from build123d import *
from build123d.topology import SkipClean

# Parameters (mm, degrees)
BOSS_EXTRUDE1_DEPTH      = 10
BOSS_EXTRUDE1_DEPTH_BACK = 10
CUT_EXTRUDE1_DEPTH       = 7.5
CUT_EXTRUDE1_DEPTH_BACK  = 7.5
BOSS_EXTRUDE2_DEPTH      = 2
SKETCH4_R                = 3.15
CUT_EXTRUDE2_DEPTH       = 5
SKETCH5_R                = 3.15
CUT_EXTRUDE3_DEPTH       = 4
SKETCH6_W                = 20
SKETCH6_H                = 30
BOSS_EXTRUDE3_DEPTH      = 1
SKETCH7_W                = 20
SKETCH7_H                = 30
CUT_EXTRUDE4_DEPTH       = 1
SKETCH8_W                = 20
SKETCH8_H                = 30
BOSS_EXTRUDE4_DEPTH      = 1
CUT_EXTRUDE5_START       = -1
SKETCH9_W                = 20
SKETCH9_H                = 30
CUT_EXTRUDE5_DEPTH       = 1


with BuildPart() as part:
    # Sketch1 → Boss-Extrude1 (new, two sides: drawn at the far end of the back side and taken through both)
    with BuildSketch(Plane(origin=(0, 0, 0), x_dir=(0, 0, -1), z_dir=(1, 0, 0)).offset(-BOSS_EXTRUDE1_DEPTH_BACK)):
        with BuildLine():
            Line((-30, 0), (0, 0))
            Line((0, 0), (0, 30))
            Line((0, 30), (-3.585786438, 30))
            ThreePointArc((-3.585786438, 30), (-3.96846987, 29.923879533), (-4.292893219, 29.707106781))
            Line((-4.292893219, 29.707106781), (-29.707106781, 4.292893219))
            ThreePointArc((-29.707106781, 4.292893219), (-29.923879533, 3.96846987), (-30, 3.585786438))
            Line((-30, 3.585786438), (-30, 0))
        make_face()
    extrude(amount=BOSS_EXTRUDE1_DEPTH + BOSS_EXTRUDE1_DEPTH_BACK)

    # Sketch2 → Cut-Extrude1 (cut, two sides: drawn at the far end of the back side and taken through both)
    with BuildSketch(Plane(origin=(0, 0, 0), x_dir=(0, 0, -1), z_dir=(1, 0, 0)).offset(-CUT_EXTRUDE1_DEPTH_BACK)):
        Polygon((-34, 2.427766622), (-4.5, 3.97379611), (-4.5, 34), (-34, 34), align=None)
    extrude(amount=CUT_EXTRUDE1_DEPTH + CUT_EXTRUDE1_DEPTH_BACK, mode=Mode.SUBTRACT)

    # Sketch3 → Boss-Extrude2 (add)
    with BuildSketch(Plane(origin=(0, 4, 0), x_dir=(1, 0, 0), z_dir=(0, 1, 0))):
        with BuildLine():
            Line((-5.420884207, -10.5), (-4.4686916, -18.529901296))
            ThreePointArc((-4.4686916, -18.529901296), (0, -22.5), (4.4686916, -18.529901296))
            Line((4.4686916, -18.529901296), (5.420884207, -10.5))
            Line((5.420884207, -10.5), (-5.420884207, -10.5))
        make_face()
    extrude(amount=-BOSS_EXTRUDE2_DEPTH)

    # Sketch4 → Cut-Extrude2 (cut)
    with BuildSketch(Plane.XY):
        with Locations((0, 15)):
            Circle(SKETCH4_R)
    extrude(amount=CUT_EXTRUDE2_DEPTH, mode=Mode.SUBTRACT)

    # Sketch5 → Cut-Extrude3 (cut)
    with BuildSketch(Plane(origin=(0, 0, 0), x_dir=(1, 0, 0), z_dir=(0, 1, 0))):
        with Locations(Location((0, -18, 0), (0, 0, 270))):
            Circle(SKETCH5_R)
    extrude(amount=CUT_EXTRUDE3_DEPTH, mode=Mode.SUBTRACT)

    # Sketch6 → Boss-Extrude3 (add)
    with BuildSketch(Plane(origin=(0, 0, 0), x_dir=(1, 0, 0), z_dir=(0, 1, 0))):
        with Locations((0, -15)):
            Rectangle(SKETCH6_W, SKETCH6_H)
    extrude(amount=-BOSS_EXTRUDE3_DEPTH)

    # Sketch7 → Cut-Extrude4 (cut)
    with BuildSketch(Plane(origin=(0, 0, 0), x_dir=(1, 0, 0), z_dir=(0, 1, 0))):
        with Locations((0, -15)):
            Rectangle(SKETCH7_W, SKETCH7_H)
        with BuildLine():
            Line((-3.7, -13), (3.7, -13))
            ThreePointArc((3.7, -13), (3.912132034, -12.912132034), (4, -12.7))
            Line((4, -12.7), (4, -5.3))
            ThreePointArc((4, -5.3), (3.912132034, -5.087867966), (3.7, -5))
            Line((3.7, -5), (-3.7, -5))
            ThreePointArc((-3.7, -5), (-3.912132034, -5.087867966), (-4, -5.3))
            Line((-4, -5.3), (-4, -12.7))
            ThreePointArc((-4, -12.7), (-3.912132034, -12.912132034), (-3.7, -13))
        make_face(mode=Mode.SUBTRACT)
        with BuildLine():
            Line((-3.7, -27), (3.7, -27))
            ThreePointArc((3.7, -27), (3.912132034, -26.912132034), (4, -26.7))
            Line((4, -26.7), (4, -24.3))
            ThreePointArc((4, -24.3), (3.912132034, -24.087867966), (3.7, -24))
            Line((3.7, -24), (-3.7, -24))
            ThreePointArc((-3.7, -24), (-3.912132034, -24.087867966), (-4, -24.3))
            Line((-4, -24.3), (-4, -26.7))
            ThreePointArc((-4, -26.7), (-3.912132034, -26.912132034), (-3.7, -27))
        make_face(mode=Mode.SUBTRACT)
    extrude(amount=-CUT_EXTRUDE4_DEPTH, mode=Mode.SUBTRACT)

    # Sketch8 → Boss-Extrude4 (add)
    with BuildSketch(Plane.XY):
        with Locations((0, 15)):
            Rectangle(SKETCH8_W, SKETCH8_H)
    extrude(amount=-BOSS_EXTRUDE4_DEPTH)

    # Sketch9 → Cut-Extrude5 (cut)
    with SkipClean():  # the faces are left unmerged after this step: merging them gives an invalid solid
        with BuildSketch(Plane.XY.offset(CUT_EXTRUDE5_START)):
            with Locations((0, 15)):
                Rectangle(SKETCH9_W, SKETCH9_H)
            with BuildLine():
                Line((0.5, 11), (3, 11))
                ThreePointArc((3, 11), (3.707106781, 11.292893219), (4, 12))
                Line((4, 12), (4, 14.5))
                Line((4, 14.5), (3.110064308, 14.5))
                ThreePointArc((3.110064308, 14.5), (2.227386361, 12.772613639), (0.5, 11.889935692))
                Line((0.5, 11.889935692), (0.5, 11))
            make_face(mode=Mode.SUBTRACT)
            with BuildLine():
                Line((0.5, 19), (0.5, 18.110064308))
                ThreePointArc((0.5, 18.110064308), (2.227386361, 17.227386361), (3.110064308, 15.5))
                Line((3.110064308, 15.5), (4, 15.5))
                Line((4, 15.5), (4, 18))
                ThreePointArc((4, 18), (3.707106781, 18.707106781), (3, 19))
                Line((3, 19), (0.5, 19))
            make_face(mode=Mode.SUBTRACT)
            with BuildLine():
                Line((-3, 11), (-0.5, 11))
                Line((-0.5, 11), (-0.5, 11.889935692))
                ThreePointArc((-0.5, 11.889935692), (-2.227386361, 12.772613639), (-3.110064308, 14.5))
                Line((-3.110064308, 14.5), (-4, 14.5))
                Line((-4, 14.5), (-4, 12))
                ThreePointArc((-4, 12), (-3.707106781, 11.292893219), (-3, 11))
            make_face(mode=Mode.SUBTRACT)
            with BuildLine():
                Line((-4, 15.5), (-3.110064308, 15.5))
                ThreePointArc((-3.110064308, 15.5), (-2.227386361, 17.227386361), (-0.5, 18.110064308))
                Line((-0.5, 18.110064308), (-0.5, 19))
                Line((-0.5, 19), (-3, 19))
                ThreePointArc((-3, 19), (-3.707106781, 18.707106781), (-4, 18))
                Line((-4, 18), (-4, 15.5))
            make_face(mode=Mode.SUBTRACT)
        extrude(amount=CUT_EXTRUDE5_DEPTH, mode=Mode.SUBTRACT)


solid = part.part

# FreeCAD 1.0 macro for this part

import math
import FreeCAD as App
import Part
import Sketcher

V = App.Vector
Q = App.Units.Quantity


def add_polygon(sketch, points):
    """Adds a closed chain of lines whose ends are joined by coincident constraints."""
    first, n = sketch.GeometryCount, len(points)
    for a, b in zip(points, points[1:] + points[:1]):
        sketch.addGeometry(Part.LineSegment(App.Vector(*a, 0), App.Vector(*b, 0)), False)
    for i in range(n):
        sketch.addConstraint(Sketcher.Constraint("Coincident", first + i, 2, first + (i + 1) % n, 1))

doc = App.newDocument("Part")
params = doc.addObject("Spreadsheet::Sheet", "Params")
for row, (alias, value) in enumerate([
    ("sketch1_radius", "1 mm"),
    ("sketch1_width", "30 mm"),
    ("pad1_length", "10 mm"),
    ("pad1_length2", "10 mm"),
    ("sketch2_height", "29.5 mm"),
    ("pocket1_length", "7.5 mm"),
    ("pocket1_length2", "7.5 mm"),
    ("sketch3_radius", "4.5 mm"),
    ("pad2_length", "2 mm"),
    ("sketch4_diameter", "6.3 mm"),
    ("pocket2_length", "5 mm"),
    ("sketch5_diameter", "6.3 mm"),
    ("pocket3_length", "4 mm"),
    ("sketch6_width", "20 mm"),
    ("sketch6_height", "30 mm"),
    ("pad3_length", "1 mm"),
    ("sketch7_radius", "0.3 mm"),
    ("sketch7_width", "20 mm"),
    ("sketch7_height", "30 mm"),
    ("sketch7_width2", "7.4 mm"),
    ("sketch7_height2", "2.4 mm"),
    ("pocket4_length", "1 mm"),
    ("sketch8_width", "20 mm"),
    ("sketch8_height", "30 mm"),
    ("pad4_length", "1 mm"),
    ("sketch9_radius", "1 mm"),
    ("sketch9_width", "20 mm"),
    ("sketch9_height", "30 mm"),
    ("sketch9_radius2", "3.15 mm"),
    ("sketch9_width2", "2.5 mm"),
    ("pocket5_length", "1 mm"),
], start=1):
    params.set(f"A{row}", alias)
    params.set(f"B{row}", "=" + value)
    params.setAlias(f"B{row}", alias)

body = doc.addObject("PartDesign::Body", "Body")

# Sketch on YZ plane
sketch1 = doc.addObject("Sketcher::SketchObject", "Sketch")
body.addObject(sketch1)
sketch1.AttachmentSupport = (doc.YZ_Plane, [""])
sketch1.MapMode = "FlatFace"
sketch1.addGeometry([
    Part.LineSegment(V(0, 30, 0), V(0, 0, 0)),  # 0
    Part.LineSegment(V(0, 0, 0), V(30, 0, 0)),  # 1
    Part.LineSegment(V(30, 0, 0), V(30, 3.6, 0)),  # 2
    Part.ArcOfCircle(Part.Circle(V(29, 3.6, 0), V(0, 0, 1), 1), math.radians(0), math.radians(45)),  # 3
    Part.LineSegment(V(29.7, 4.3, 0), V(4.3, 29.7, 0)),  # 4
    Part.ArcOfCircle(Part.Circle(V(3.6, 29, 0), V(0, 0, 1), 1), math.radians(45), math.radians(90)),  # 5
    Part.LineSegment(V(3.6, 30, 0), V(0, 30, 0)),  # 6
], False)
sketch1.addConstraint([
    Sketcher.Constraint("Coincident", 0, 2, 1, 1),
    Sketcher.Constraint("Coincident", 1, 2, 2, 1),
    Sketcher.Constraint("Tangent", 2, 2, 3, 1),
    Sketcher.Constraint("Tangent", 3, 2, 4, 1),
    Sketcher.Constraint("Tangent", 4, 2, 5, 1),
    Sketcher.Constraint("Tangent", 5, 2, 6, 1),
    Sketcher.Constraint("Coincident", 6, 2, 0, 1),
    Sketcher.Constraint("Vertical", 0),
    Sketcher.Constraint("Horizontal", 1),
    Sketcher.Constraint("Vertical", 2),
    Sketcher.Constraint("Horizontal", 6),
    Sketcher.Constraint("Coincident", 0, 2, -1, 1),
    Sketcher.Constraint("Equal", 3, 5),
    Sketcher.Constraint("Equal", 1, 0),
    Sketcher.Constraint("Equal", 6, 2),
    Sketcher.Constraint("Radius", 3, 1.0),
    Sketcher.Constraint("DistanceX", 1, 1, 1, 2, 30.0),
    Sketcher.Constraint("DistanceX", 6, 2, 6, 1, 3.585786),
])
sketch1.setExpression("Constraints[15]", "Params.sketch1_radius")
sketch1.setExpression("Constraints[16]", "Params.sketch1_width")
pad1 = doc.addObject("PartDesign::Pad", "Pad")
body.addObject(pad1)
pad1.Profile = sketch1
pad1.Type = "TwoLengths"
pad1.setExpression("Length", "Params.pad1_length")
pad1.setExpression("Length2", "Params.pad1_length2")

# Sketch on YZ plane
sketch2 = doc.addObject("Sketcher::SketchObject", "Sketch001")
body.addObject(sketch2)
sketch2.AttachmentSupport = (doc.YZ_Plane, [""])
sketch2.MapMode = "FlatFace"
add_polygon(sketch2, [(2, 34), (4, 4), (34, 4), (34, 34)])  # lines 0-3
sketch2.addConstraint([
    Sketcher.Constraint("Horizontal", 1),
    Sketcher.Constraint("Vertical", 2),
    Sketcher.Constraint("Horizontal", 3),
    Sketcher.Constraint("Angle", 0, Q("-87 deg")),
    Sketcher.Constraint("DistanceY", 2, 1, 2, 2, 29.5),
    Sketcher.Constraint("DistanceX", -1, 1, 1, 2, 34.0),
    Sketcher.Constraint("DistanceY", -1, 1, 2, 2, 34.0),
    Sketcher.Constraint("DistanceX", 1, 1, 1, 2, 30.026204),
])
sketch2.setExpression("Constraints[8]", "Params.sketch2_height")
pocket1 = doc.addObject("PartDesign::Pocket", "Pocket")
body.addObject(pocket1)
pocket1.Profile = sketch2
pocket1.Type = "TwoLengths"
pocket1.setExpression("Length", "Params.pocket1_length")
pocket1.setExpression("Length2", "Params.pocket1_length2")
pocket1.Reversed = True

# Sketch on XZ plane
sketch3 = doc.addObject("Sketcher::SketchObject", "Sketch002")
body.addObject(sketch3)
sketch3.AttachmentSupport = (doc.XZ_Plane, [""])
sketch3.MapMode = "FlatFace"
sketch3.AttachmentOffset = App.Placement(V(0, 0, -4), App.Rotation())
sketch3.addGeometry([
    Part.LineSegment(V(-5.4, 10.5, 0), V(-4.5, 18.5, 0)),
    Part.ArcOfCircle(Part.Circle(V(0, 18, 0), V(0, 0, 1), 4.5), math.radians(7), math.radians(173)),
    Part.LineSegment(V(4.5, 18.5, 0), V(5.4, 10.5, 0)),
    Part.LineSegment(V(5.4, 10.5, 0), V(-5.4, 10.5, 0)),
], False)
sketch3.addConstraint([
    Sketcher.Constraint("Tangent", 0, 2, 1, 2),
    Sketcher.Constraint("Tangent", 1, 1, 2, 1),
    Sketcher.Constraint("Coincident", 2, 2, 3, 1),
    Sketcher.Constraint("Coincident", 3, 2, 0, 1),
    Sketcher.Constraint("Horizontal", 3),
    Sketcher.Constraint("Symmetric", 0, 2, 1, 1, -2),
    Sketcher.Constraint("Radius", 1, 4.5),
    Sketcher.Constraint("DistanceY", -1, 1, 1, 3, 18.0),
    Sketcher.Constraint("DistanceY", -1, 1, 2, 2, 10.5),
    Sketcher.Constraint("DistanceX", 3, 2, 3, 1, 10.841768),
])
sketch3.setExpression("Constraints[6]", "Params.sketch3_radius")
pad2 = doc.addObject("PartDesign::Pad", "Pad001")
body.addObject(pad2)
pad2.Profile = sketch3
pad2.setExpression("Length", "Params.pad2_length")

# Sketch on XY plane
sketch4 = doc.addObject("Sketcher::SketchObject", "Sketch003")
body.addObject(sketch4)
sketch4.AttachmentSupport = (doc.XY_Plane, [""])
sketch4.MapMode = "FlatFace"
sketch4.addGeometry(Part.Circle(V(0, 15, 0), V(0, 0, 1), 3.1), False)
sketch4.addConstraint([
    Sketcher.Constraint("PointOnObject", 0, 3, -2),
    Sketcher.Constraint("Diameter", 0, 6.3),
    Sketcher.Constraint("DistanceY", -1, 1, 0, 3, 15.0),
])
sketch4.setExpression("Constraints[1]", "Params.sketch4_diameter")
pocket2 = doc.addObject("PartDesign::Pocket", "Pocket001")
body.addObject(pocket2)
pocket2.Profile = sketch4
pocket2.setExpression("Length", "Params.pocket2_length")
pocket2.Reversed = True

# Sketch on XZ plane
sketch5 = doc.addObject("Sketcher::SketchObject", "Sketch004")
body.addObject(sketch5)
sketch5.AttachmentSupport = (doc.XZ_Plane, [""])
sketch5.MapMode = "FlatFace"
sketch5.addGeometry(Part.Circle(V(0, 18, 0), V(0, 0, 1), 3.1), False)
sketch5.addConstraint([
    Sketcher.Constraint("PointOnObject", 0, 3, -2),
    Sketcher.Constraint("Diameter", 0, 6.3),
    Sketcher.Constraint("DistanceY", -1, 1, 0, 3, 18.0),
])
sketch5.setExpression("Constraints[1]", "Params.sketch5_diameter")
pocket3 = doc.addObject("PartDesign::Pocket", "Pocket002")
body.addObject(pocket3)
pocket3.Profile = sketch5
pocket3.setExpression("Length", "Params.pocket3_length")

# Sketch on XZ plane
sketch6 = doc.addObject("Sketcher::SketchObject", "Sketch005")
body.addObject(sketch6)
sketch6.AttachmentSupport = (doc.XZ_Plane, [""])
sketch6.MapMode = "FlatFace"
add_polygon(sketch6, [(-10, 0), (-10, 30), (10, 30), (10, 0)])  # lines 0-3
sketch6.addConstraint([
    Sketcher.Constraint("Vertical", 0),
    Sketcher.Constraint("Horizontal", 1),
    Sketcher.Constraint("Vertical", 2),
    Sketcher.Constraint("Horizontal", 3),
    Sketcher.Constraint("Symmetric", 2, 2, 3, 2, -1, 1),
    Sketcher.Constraint("DistanceX", 1, 1, 1, 2, 20.0),
    Sketcher.Constraint("DistanceY", 0, 1, 0, 2, 30.0),
])
sketch6.setExpression("Constraints[9]", "Params.sketch6_width")
sketch6.setExpression("Constraints[10]", "Params.sketch6_height")
pad3 = doc.addObject("PartDesign::Pad", "Pad002")
body.addObject(pad3)
pad3.Profile = sketch6
pad3.setExpression("Length", "Params.pad3_length")

# Sketch on XZ plane
sketch7 = doc.addObject("Sketcher::SketchObject", "Sketch006")
body.addObject(sketch7)
sketch7.AttachmentSupport = (doc.XZ_Plane, [""])
sketch7.MapMode = "FlatFace"
add_polygon(sketch7, [(-10, 0), (-10, 30), (10, 30), (10, 0)])  # lines 0-3
sketch7.addGeometry(Part.LineSegment(V(3.7, 27, 0), V(-3.7, 27, 0)), False)  # 4
sketch7.addGeometry(Part.ArcOfCircle(Part.Circle(V(-3.7, 26.7, 0), V(0, 0, 1), 0.3), math.radians(90), math.radians(180)), False)  # 5
sketch7.addGeometry(Part.LineSegment(V(-4, 26.7, 0), V(-4, 24.3, 0)), False)  # 6
sketch7.addGeometry(Part.ArcOfCircle(Part.Circle(V(-3.7, 24.3, 0), V(0, 0, 1), 0.3), math.radians(-180), math.radians(-90)), False)  # 7
sketch7.addGeometry(Part.LineSegment(V(-3.7, 24, 0), V(3.7, 24, 0)), False)  # 8
sketch7.addGeometry(Part.ArcOfCircle(Part.Circle(V(3.7, 24.3, 0), V(0, 0, 1), 0.3), math.radians(-90), math.radians(0)), False)  # 9
sketch7.addGeometry(Part.LineSegment(V(4, 24.3, 0), V(4, 26.7, 0)), False)  # 10
sketch7.addGeometry(Part.ArcOfCircle(Part.Circle(V(3.7, 26.7, 0), V(0, 0, 1), 0.3), math.radians(0), math.radians(90)), False)  # 11
sketch7.addGeometry(Part.LineSegment(V(3.7, 13, 0), V(-3.7, 13, 0)), False)  # 12
sketch7.addGeometry(Part.ArcOfCircle(Part.Circle(V(-3.7, 12.7, 0), V(0, 0, 1), 0.3), math.radians(90), math.radians(180)), False)  # 13
sketch7.addGeometry(Part.LineSegment(V(-4, 12.7, 0), V(-4, 5.3, 0)), False)  # 14
sketch7.addGeometry(Part.ArcOfCircle(Part.Circle(V(-3.7, 5.3, 0), V(0, 0, 1), 0.3), math.radians(-180), math.radians(-90)), False)  # 15
sketch7.addGeometry(Part.LineSegment(V(-3.7, 5, 0), V(3.7, 5, 0)), False)  # 16
sketch7.addGeometry(Part.ArcOfCircle(Part.Circle(V(3.7, 5.3, 0), V(0, 0, 1), 0.3), math.radians(-90), math.radians(0)), False)  # 17
sketch7.addGeometry(Part.LineSegment(V(4, 5.3, 0), V(4, 12.7, 0)), False)  # 18
sketch7.addGeometry(Part.ArcOfCircle(Part.Circle(V(3.7, 12.7, 0), V(0, 0, 1), 0.3), math.radians(0), math.radians(90)), False)  # 19
sketch7.addConstraint([
    Sketcher.Constraint("Tangent", 4, 2, 5, 1),
    Sketcher.Constraint("Tangent", 5, 2, 6, 1),
    Sketcher.Constraint("Tangent", 6, 2, 7, 1),
    Sketcher.Constraint("Tangent", 7, 2, 8, 1),
    Sketcher.Constraint("Tangent", 8, 2, 9, 1),
    Sketcher.Constraint("Tangent", 9, 2, 10, 1),
    Sketcher.Constraint("Tangent", 10, 2, 11, 1),
    Sketcher.Constraint("Tangent", 11, 2, 4, 1),
    Sketcher.Constraint("Tangent", 12, 2, 13, 1),
    Sketcher.Constraint("Tangent", 13, 2, 14, 1),
    Sketcher.Constraint("Tangent", 14, 2, 15, 1),
    Sketcher.Constraint("Tangent", 15, 2, 16, 1),
    Sketcher.Constraint("Tangent", 16, 2, 17, 1),
    Sketcher.Constraint("Tangent", 17, 2, 18, 1),
    Sketcher.Constraint("Tangent", 18, 2, 19, 1),
    Sketcher.Constraint("Tangent", 19, 2, 12, 1),
    Sketcher.Constraint("Vertical", 0),
    Sketcher.Constraint("Horizontal", 1),
    Sketcher.Constraint("Vertical", 2),
    Sketcher.Constraint("Horizontal", 3),
    Sketcher.Constraint("Horizontal", 4),
    Sketcher.Constraint("Vertical", 6),
    Sketcher.Constraint("Horizontal", 8),
    Sketcher.Constraint("Vertical", 10),
    Sketcher.Constraint("Horizontal", 12),
    Sketcher.Constraint("Vertical", 14),
    Sketcher.Constraint("Horizontal", 16),
    Sketcher.Constraint("Vertical", 18),
    Sketcher.Constraint("Equal", 5, 7),
    Sketcher.Constraint("Equal", 7, 9),
    Sketcher.Constraint("Equal", 9, 11),
    Sketcher.Constraint("Equal", 11, 13),
    Sketcher.Constraint("Equal", 13, 15),
    Sketcher.Constraint("Equal", 15, 17),
    Sketcher.Constraint("Equal", 17, 19),
    Sketcher.Constraint("Symmetric", 2, 2, 3, 2, -1, 1),
    Sketcher.Constraint("Vertical", 7, 3, 13, 3),
    Sketcher.Constraint("Vertical", 11, 3, 17, 3),
    Sketcher.Constraint("Equal", 16, 14),
    Sketcher.Constraint("Radius", 5, 0.3),
    Sketcher.Constraint("DistanceX", 1, 1, 1, 2, 20.0),
    Sketcher.Constraint("DistanceY", 0, 1, 0, 2, 30.0),
    Sketcher.Constraint("DistanceX", 4, 2, 4, 1, 7.4),
    Sketcher.Constraint("DistanceY", 6, 2, 6, 1, 2.4),
    Sketcher.Constraint("DistanceY", -1, 1, 4, 2, 27.0),
    Sketcher.Constraint("DistanceX", 5, 2, -1, 1, 4.0),
    Sketcher.Constraint("DistanceY", -1, 1, 12, 2, 13.0),
])
sketch7.setExpression("Constraints[43]", "Params.sketch7_radius")
sketch7.setExpression("Constraints[44]", "Params.sketch7_width")
sketch7.setExpression("Constraints[45]", "Params.sketch7_height")
sketch7.setExpression("Constraints[46]", "Params.sketch7_width2")
sketch7.setExpression("Constraints[47]", "Params.sketch7_height2")
pocket4 = doc.addObject("PartDesign::Pocket", "Pocket003")
body.addObject(pocket4)
pocket4.Profile = sketch7
pocket4.setExpression("Length", "Params.pocket4_length")
pocket4.Reversed = True

# Sketch on XY plane
sketch8 = doc.addObject("Sketcher::SketchObject", "Sketch007")
body.addObject(sketch8)
sketch8.AttachmentSupport = (doc.XY_Plane, [""])
sketch8.MapMode = "FlatFace"
add_polygon(sketch8, [(-10, 30), (-10, 0), (10, 0), (10, 30)])  # lines 0-3
sketch8.addConstraint([
    Sketcher.Constraint("Vertical", 0),
    Sketcher.Constraint("Horizontal", 1),
    Sketcher.Constraint("Vertical", 2),
    Sketcher.Constraint("Horizontal", 3),
    Sketcher.Constraint("Symmetric", 0, 2, 1, 2, -1, 1),
    Sketcher.Constraint("DistanceX", 1, 1, 1, 2, 20.0),
    Sketcher.Constraint("DistanceY", 0, 2, 0, 1, 30.0),
])
sketch8.setExpression("Constraints[9]", "Params.sketch8_width")
sketch8.setExpression("Constraints[10]", "Params.sketch8_height")
pad4 = doc.addObject("PartDesign::Pad", "Pad003")
body.addObject(pad4)
pad4.Profile = sketch8
pad4.setExpression("Length", "Params.pad4_length")
pad4.Reversed = True

# Sketch on XY plane
sketch9 = doc.addObject("Sketcher::SketchObject", "Sketch008")
body.addObject(sketch9)
sketch9.AttachmentSupport = (doc.XY_Plane, [""])
sketch9.MapMode = "FlatFace"
sketch9.AttachmentOffset = App.Placement(V(0, 0, -1), App.Rotation())
add_polygon(sketch9, [(-10, 30), (-10, 0), (10, 0), (10, 30)])  # lines 0-3
sketch9.addGeometry(Part.LineSegment(V(-0.5, 11, 0), V(-3, 11, 0)), False)  # 4
sketch9.addGeometry(Part.ArcOfCircle(Part.Circle(V(-3, 12, 0), V(0, 0, 1), 1), math.radians(-180), math.radians(-90)), False)  # 5
sketch9.addGeometry(Part.LineSegment(V(-4, 12, 0), V(-4, 14.5, 0)), False)  # 6
sketch9.addGeometry(Part.LineSegment(V(-4, 14.5, 0), V(-3.1, 14.5, 0)), False)  # 7
sketch9.addGeometry(Part.ArcOfCircle(Part.Circle(V(0, 15, 0), V(0, 0, 1), 3.1), math.radians(-171), math.radians(-99)), False)  # 8
sketch9.addGeometry(Part.LineSegment(V(-0.5, 11.9, 0), V(-0.5, 11, 0)), False)  # 9
sketch9.addGeometry(Part.LineSegment(V(3, 11, 0), V(0.5, 11, 0)), False)  # 10
sketch9.addGeometry(Part.LineSegment(V(0.5, 11, 0), V(0.5, 11.9, 0)), False)  # 11
sketch9.addGeometry(Part.ArcOfCircle(Part.Circle(V(0, 15, 0), V(0, 0, 1), 3.1), math.radians(-81), math.radians(-9)), False)  # 12
sketch9.addGeometry(Part.LineSegment(V(3.1, 14.5, 0), V(4, 14.5, 0)), False)  # 13
sketch9.addGeometry(Part.LineSegment(V(4, 14.5, 0), V(4, 12, 0)), False)  # 14
sketch9.addGeometry(Part.ArcOfCircle(Part.Circle(V(3, 12, 0), V(0, 0, 1), 1), math.radians(-90), math.radians(0)), False)  # 15
sketch9.addGeometry(Part.LineSegment(V(-3.1, 15.5, 0), V(-4, 15.5, 0)), False)  # 16
sketch9.addGeometry(Part.LineSegment(V(-4, 15.5, 0), V(-4, 18, 0)), False)  # 17
sketch9.addGeometry(Part.ArcOfCircle(Part.Circle(V(-3, 18, 0), V(0, 0, 1), 1), math.radians(90), math.radians(180)), False)  # 18
sketch9.addGeometry(Part.LineSegment(V(-3, 19, 0), V(-0.5, 19, 0)), False)  # 19
sketch9.addGeometry(Part.LineSegment(V(-0.5, 19, 0), V(-0.5, 18.1, 0)), False)  # 20
sketch9.addGeometry(Part.ArcOfCircle(Part.Circle(V(0, 15, 0), V(0, 0, 1), 3.1), math.radians(99), math.radians(171)), False)  # 21
sketch9.addGeometry(Part.LineSegment(V(0.5, 18.1, 0), V(0.5, 19, 0)), False)  # 22
sketch9.addGeometry(Part.LineSegment(V(0.5, 19, 0), V(3, 19, 0)), False)  # 23
sketch9.addGeometry(Part.ArcOfCircle(Part.Circle(V(3, 18, 0), V(0, 0, 1), 1), math.radians(0), math.radians(90)), False)  # 24
sketch9.addGeometry(Part.LineSegment(V(4, 18, 0), V(4, 15.5, 0)), False)  # 25
sketch9.addGeometry(Part.LineSegment(V(4, 15.5, 0), V(3.1, 15.5, 0)), False)  # 26
sketch9.addGeometry(Part.ArcOfCircle(Part.Circle(V(0, 15, 0), V(0, 0, 1), 3.1), math.radians(9), math.radians(81)), False)  # 27
sketch9.addConstraint([
    Sketcher.Constraint("Tangent", 4, 2, 5, 2),
    Sketcher.Constraint("Tangent", 5, 1, 6, 1),
    Sketcher.Constraint("Coincident", 6, 2, 7, 1),
    Sketcher.Constraint("Coincident", 7, 2, 8, 1),
    Sketcher.Constraint("Coincident", 8, 2, 9, 1),
    Sketcher.Constraint("Coincident", 9, 2, 4, 1),
    Sketcher.Constraint("Coincident", 10, 2, 11, 1),
    Sketcher.Constraint("Coincident", 11, 2, 12, 1),
    Sketcher.Constraint("Coincident", 12, 2, 13, 1),
    Sketcher.Constraint("Coincident", 13, 2, 14, 1),
    Sketcher.Constraint("Tangent", 14, 2, 15, 2),
    Sketcher.Constraint("Tangent", 15, 1, 10, 1),
    Sketcher.Constraint("Coincident", 16, 2, 17, 1),
    Sketcher.Constraint("Tangent", 17, 2, 18, 2),
    Sketcher.Constraint("Tangent", 18, 1, 19, 1),
    Sketcher.Constraint("Coincident", 19, 2, 20, 1),
    Sketcher.Constraint("Coincident", 20, 2, 21, 1),
    Sketcher.Constraint("Coincident", 21, 2, 16, 1),
    Sketcher.Constraint("Coincident", 22, 2, 23, 1),
    Sketcher.Constraint("Tangent", 23, 2, 24, 2),
    Sketcher.Constraint("Tangent", 24, 1, 25, 1),
    Sketcher.Constraint("Coincident", 25, 2, 26, 1),
    Sketcher.Constraint("Coincident", 26, 2, 27, 1),
    Sketcher.Constraint("Coincident", 27, 2, 22, 1),
    Sketcher.Constraint("Vertical", 0),
    Sketcher.Constraint("Horizontal", 1),
    Sketcher.Constraint("Vertical", 2),
    Sketcher.Constraint("Horizontal", 3),
    Sketcher.Constraint("Horizontal", 4),
    Sketcher.Constraint("Vertical", 6),
    Sketcher.Constraint("Horizontal", 7),
    Sketcher.Constraint("Vertical", 9),
    Sketcher.Constraint("Horizontal", 10),
    Sketcher.Constraint("Vertical", 11),
    Sketcher.Constraint("Horizontal", 13),
    Sketcher.Constraint("Vertical", 14),
    Sketcher.Constraint("Horizontal", 16),
    Sketcher.Constraint("Vertical", 17),
    Sketcher.Constraint("Horizontal", 19),
    Sketcher.Constraint("Vertical", 20),
    Sketcher.Constraint("Vertical", 22),
    Sketcher.Constraint("Horizontal", 23),
    Sketcher.Constraint("Vertical", 25),
    Sketcher.Constraint("Horizontal", 26),
    Sketcher.Constraint("Coincident", 12, 3, 8, 3),
    Sketcher.Constraint("Coincident", 21, 3, 8, 3),
    Sketcher.Constraint("Coincident", 27, 3, 8, 3),
    Sketcher.Constraint("Equal", 8, 12),
    Sketcher.Constraint("Equal", 5, 15),
    Sketcher.Constraint("Equal", 15, 18),
    Sketcher.Constraint("Equal", 12, 21),
    Sketcher.Constraint("Equal", 18, 24),
    Sketcher.Constraint("Equal", 21, 27),
    Sketcher.Constraint("Symmetric", 0, 2, 1, 2, -1, 1),
    Sketcher.Constraint("Symmetric", 5, 3, 15, 3, -2),
    Sketcher.Constraint("Symmetric", 18, 3, 24, 3, -2),
    Sketcher.Constraint("Symmetric", 8, 2, 11, 2, -2),
    Sketcher.Constraint("Horizontal", 7, 2, 12, 2),
    Sketcher.Constraint("Horizontal", 21, 2, 25, 2),
    Sketcher.Constraint("Horizontal", 20, 2, 27, 2),
    Sketcher.Constraint("Vertical", 5, 3, 18, 3),
    Sketcher.Constraint("Vertical", 9, 2, 19, 2),
    Sketcher.Constraint("Vertical", 7, 2, 21, 2),
    Sketcher.Constraint("Equal", 23, 6),
    Sketcher.Constraint("Equal", 26, 9),
    Sketcher.Constraint("Equal", 14, 17),
    Sketcher.Constraint("Radius", 5, 1.0),
    Sketcher.Constraint("DistanceX", 1, 1, 1, 2, 20.0),
    Sketcher.Constraint("DistanceY", 0, 2, 0, 1, 30.0),
    Sketcher.Constraint("Radius", 8, 3.15),
    Sketcher.Constraint("DistanceX", 4, 2, 4, 1, 2.5),
    Sketcher.Constraint("DistanceX", 5, 3, -1, 1, 3.0),
    Sketcher.Constraint("DistanceY", -1, 1, 5, 3, 12.0),
])
sketch9.setExpression("Constraints[70]", "Params.sketch9_radius")
sketch9.setExpression("Constraints[71]", "Params.sketch9_width")
sketch9.setExpression("Constraints[72]", "Params.sketch9_height")
sketch9.setExpression("Constraints[73]", "Params.sketch9_radius2")
sketch9.setExpression("Constraints[74]", "Params.sketch9_width2")
pocket5 = doc.addObject("PartDesign::Pocket", "Pocket004")
body.addObject(pocket5)
pocket5.Profile = sketch9
pocket5.setExpression("Length", "Params.pocket5_length")
pocket5.Reversed = True

doc.recompute()
